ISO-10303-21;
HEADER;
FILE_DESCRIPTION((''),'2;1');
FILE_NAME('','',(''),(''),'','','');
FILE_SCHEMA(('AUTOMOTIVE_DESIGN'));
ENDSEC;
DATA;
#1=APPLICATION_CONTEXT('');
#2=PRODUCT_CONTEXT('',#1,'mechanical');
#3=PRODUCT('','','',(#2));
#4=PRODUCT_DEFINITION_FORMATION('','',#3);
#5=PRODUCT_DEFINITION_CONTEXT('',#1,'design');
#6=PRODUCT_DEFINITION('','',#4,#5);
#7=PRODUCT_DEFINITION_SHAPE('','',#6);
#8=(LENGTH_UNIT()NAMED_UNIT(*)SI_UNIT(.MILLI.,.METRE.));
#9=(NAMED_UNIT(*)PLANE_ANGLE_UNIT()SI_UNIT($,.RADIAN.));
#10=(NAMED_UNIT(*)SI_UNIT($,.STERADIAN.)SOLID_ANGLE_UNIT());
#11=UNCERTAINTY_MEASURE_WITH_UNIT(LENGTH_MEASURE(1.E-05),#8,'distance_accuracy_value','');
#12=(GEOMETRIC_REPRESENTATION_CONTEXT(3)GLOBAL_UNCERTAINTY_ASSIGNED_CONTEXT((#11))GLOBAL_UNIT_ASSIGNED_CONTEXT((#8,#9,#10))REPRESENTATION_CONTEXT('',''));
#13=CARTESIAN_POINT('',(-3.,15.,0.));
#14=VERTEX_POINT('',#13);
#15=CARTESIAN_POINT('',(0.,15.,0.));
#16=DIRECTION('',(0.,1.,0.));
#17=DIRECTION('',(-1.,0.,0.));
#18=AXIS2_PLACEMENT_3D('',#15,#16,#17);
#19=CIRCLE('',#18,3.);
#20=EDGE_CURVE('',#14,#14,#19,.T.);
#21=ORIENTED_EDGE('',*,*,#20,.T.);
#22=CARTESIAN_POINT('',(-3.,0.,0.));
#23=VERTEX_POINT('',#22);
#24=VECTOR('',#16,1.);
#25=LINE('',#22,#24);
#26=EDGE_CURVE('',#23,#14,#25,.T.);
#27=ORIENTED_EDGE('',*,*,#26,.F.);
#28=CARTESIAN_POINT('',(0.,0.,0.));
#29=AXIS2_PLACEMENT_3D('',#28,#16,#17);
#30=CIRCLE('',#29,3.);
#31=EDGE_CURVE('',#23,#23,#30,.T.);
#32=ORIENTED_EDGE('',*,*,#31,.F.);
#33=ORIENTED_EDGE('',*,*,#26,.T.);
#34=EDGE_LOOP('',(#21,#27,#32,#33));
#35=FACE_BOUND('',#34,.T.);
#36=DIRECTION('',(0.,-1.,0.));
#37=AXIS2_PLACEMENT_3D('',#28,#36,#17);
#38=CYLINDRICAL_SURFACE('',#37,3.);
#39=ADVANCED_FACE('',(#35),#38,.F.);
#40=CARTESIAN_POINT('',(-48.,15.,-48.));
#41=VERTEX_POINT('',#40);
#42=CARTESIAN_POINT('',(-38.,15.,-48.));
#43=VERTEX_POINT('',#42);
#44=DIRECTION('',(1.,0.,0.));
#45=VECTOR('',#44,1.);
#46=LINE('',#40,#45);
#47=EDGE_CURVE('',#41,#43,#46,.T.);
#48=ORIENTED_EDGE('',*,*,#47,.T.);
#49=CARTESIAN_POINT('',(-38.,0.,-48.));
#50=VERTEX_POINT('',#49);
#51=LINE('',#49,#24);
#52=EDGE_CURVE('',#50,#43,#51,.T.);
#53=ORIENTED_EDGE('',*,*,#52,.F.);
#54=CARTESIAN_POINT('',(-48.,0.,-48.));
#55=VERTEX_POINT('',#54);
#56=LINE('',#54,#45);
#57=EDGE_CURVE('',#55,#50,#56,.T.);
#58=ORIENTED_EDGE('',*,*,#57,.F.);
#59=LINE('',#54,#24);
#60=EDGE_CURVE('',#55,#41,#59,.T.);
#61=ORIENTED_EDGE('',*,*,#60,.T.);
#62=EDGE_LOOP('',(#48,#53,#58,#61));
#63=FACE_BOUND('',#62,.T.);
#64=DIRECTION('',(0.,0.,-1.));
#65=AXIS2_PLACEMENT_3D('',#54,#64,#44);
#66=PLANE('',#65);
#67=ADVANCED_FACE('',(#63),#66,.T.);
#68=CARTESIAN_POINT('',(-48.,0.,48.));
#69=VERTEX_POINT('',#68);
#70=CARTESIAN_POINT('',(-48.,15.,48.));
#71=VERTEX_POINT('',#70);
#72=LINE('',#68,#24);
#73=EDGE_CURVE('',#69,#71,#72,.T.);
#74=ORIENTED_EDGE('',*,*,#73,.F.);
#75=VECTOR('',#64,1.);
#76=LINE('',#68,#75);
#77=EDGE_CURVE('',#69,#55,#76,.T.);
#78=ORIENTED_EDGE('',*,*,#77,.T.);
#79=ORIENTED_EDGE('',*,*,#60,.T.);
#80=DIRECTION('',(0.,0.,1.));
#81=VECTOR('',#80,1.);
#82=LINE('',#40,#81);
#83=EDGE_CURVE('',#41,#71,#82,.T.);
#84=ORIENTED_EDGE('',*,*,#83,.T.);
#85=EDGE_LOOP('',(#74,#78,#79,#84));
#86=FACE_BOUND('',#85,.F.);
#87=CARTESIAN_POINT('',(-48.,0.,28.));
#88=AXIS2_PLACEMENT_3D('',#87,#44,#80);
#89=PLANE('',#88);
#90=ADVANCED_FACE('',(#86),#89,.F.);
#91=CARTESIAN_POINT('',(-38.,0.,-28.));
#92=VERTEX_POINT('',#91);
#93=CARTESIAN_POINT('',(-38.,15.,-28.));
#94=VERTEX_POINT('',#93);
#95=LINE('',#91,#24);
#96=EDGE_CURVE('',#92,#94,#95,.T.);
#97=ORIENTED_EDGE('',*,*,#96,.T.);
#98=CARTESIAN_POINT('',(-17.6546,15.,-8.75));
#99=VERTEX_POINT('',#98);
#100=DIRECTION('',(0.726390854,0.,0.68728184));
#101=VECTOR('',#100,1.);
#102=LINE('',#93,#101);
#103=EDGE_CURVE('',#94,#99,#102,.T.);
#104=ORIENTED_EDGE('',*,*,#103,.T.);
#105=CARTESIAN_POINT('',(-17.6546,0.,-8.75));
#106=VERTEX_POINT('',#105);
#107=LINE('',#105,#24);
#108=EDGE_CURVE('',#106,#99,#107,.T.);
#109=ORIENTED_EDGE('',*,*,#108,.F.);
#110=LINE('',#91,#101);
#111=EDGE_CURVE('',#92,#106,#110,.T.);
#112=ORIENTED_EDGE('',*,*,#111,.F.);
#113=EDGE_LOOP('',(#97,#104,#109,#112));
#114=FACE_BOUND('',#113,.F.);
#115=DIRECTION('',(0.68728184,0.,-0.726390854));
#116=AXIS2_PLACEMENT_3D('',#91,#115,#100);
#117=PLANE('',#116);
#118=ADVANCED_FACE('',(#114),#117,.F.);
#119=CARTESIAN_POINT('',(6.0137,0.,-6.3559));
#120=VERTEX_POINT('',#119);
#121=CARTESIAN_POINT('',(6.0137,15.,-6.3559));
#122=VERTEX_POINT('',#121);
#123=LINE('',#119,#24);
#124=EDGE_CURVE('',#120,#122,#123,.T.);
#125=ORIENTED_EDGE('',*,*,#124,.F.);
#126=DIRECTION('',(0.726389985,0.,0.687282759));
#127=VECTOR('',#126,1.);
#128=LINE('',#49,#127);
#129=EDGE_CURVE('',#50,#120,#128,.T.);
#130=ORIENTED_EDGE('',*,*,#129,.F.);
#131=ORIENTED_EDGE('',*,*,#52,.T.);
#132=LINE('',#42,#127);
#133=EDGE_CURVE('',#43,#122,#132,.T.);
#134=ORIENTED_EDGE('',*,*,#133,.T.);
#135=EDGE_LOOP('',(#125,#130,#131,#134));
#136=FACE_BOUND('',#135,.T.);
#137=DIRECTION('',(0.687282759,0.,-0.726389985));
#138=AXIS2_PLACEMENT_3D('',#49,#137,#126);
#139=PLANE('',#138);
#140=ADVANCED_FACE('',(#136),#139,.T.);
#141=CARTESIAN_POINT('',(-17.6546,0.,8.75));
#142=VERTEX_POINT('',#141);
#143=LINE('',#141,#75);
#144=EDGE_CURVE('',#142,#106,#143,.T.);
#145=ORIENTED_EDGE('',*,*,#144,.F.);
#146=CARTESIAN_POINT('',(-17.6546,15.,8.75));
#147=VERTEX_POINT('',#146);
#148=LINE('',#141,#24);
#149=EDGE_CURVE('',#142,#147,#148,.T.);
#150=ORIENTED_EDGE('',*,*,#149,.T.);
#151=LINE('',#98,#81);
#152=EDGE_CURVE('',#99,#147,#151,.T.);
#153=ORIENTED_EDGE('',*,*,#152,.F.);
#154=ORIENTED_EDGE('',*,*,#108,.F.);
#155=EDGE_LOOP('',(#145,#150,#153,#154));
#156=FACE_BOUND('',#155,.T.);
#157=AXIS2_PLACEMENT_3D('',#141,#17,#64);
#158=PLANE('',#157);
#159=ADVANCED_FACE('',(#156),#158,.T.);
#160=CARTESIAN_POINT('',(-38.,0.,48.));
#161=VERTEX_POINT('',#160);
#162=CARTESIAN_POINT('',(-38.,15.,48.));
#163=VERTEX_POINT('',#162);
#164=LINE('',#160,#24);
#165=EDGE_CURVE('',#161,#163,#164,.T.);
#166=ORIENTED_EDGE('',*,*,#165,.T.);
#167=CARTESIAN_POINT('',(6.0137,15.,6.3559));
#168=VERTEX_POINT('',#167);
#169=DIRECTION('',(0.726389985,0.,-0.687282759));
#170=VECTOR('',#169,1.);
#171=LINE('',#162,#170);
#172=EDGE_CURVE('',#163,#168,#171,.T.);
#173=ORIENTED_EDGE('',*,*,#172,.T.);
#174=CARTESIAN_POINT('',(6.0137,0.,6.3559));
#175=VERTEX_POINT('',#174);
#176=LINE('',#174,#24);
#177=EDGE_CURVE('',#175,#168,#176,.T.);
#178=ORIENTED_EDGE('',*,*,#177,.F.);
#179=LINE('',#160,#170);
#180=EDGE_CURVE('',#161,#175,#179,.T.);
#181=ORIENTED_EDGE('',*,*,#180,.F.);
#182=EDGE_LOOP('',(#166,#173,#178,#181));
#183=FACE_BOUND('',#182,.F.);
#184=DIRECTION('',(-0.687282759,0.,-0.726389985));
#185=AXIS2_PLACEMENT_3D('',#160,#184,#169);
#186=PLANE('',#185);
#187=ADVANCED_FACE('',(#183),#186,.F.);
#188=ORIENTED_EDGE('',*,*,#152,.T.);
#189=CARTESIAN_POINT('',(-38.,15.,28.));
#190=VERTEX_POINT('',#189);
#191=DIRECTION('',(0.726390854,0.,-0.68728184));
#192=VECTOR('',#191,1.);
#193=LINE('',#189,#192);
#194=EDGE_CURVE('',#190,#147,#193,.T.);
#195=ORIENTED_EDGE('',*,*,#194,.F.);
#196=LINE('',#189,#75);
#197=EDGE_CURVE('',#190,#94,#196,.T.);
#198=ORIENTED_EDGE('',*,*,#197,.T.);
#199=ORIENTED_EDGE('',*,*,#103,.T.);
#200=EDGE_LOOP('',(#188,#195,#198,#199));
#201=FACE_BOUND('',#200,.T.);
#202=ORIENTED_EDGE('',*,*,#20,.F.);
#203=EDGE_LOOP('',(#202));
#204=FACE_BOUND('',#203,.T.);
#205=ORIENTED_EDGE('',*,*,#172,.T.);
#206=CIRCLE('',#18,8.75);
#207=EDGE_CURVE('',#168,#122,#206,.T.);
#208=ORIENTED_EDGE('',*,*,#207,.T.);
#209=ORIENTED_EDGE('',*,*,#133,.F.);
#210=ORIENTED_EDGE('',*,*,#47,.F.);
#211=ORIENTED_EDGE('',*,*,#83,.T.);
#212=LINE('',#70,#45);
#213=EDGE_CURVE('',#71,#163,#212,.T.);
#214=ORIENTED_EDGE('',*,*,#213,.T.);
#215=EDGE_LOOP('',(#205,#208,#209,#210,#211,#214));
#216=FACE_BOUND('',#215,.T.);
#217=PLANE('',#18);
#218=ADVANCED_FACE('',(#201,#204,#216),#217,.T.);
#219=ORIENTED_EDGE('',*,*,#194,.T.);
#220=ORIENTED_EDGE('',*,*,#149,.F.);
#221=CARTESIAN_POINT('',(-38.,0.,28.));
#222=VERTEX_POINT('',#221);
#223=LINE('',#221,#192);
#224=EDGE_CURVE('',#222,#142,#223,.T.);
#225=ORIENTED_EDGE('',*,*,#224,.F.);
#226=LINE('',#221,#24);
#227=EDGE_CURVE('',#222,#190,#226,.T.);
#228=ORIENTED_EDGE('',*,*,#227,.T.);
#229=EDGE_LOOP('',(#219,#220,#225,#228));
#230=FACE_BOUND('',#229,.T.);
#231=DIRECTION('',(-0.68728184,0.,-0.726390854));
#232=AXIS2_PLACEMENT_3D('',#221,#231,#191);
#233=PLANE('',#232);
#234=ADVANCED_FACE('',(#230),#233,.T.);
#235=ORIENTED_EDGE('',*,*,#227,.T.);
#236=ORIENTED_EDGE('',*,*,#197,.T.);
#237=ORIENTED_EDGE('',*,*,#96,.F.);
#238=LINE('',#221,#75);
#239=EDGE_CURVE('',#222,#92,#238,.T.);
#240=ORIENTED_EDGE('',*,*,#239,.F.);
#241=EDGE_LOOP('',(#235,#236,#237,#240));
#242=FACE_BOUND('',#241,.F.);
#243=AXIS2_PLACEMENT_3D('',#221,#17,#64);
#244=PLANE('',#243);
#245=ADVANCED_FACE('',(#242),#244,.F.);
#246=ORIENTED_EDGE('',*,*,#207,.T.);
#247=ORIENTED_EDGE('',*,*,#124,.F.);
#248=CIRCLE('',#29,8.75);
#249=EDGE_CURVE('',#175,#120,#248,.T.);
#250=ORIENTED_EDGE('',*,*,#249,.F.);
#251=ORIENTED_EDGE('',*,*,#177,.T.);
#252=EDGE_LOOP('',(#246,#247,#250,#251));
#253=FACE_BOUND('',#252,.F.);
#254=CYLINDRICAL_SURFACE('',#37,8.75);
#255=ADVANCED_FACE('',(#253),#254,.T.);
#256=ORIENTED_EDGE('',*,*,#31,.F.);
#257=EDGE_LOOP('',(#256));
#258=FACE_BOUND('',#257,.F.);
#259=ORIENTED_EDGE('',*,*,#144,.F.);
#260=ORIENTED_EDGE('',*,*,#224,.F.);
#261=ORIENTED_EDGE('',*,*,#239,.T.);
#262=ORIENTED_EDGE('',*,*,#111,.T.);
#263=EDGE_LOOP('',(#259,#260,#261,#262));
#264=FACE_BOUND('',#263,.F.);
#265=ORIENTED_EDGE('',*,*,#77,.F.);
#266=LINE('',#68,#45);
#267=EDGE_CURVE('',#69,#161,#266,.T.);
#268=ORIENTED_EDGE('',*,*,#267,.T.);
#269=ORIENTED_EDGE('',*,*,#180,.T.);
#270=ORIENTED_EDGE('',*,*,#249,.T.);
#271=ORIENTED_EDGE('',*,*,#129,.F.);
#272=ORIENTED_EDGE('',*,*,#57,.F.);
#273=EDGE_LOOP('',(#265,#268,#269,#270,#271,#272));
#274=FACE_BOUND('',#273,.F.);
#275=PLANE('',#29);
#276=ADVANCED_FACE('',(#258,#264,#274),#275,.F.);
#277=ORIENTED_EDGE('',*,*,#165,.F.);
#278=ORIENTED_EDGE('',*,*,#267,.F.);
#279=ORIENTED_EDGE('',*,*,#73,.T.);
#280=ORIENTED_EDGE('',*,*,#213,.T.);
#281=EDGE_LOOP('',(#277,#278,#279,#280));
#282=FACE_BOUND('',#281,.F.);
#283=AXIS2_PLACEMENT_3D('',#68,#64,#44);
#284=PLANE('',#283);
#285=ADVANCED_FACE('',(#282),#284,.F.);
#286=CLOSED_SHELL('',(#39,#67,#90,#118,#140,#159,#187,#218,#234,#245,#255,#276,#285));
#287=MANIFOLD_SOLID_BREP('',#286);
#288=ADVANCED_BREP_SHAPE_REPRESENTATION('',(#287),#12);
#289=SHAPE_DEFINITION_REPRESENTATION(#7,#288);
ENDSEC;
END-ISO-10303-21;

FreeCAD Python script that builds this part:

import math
import FreeCAD as App
import Part
import Sketcher


def add_polygon(sketch, points):
    """Adds a closed chain of lines whose ends are joined by coincident constraints."""
    first, n = sketch.GeometryCount, len(points)
    for a, b in zip(points, points[1:] + points[:1]):
        sketch.addGeometry(Part.LineSegment(App.Vector(*a, 0), App.Vector(*b, 0)), False)
    for i in range(n):
        sketch.addConstraint(Sketcher.Constraint("Coincident", first + i, 2, first + (i + 1) % n, 1))

doc = App.newDocument("Part")
body = doc.addObject("PartDesign::Body", "Body")

# Sketch on XZ plane
sketch1 = doc.addObject("Sketcher::SketchObject", "Sketch")
body.addObject(sketch1)
sketch1.AttachmentSupport = (doc.XZ_Plane, [""])
sketch1.MapMode = "FlatFace"
sketch1.addGeometry(Part.ArcOfCircle(Part.Circle(App.Vector(0, 0, 0), App.Vector(0, 0, 1), 8.8), math.radians(-47), math.radians(47)), False)  # 0
sketch1.addGeometry(Part.LineSegment(App.Vector(6, -6.4, 0), App.Vector(-38, -48, 0)), False)  # 1
sketch1.addGeometry(Part.LineSegment(App.Vector(-38, -48, 0), App.Vector(-48, -48, 0)), False)  # 2
sketch1.addGeometry(Part.LineSegment(App.Vector(-48, -48, 0), App.Vector(-48, 48, 0)), False)  # 3
sketch1.addGeometry(Part.LineSegment(App.Vector(-48, 48, 0), App.Vector(-38, 48, 0)), False)  # 4
sketch1.addGeometry(Part.LineSegment(App.Vector(-38, 48, 0), App.Vector(6, 6.4, 0)), False)  # 5
sketch1.addGeometry(Part.Circle(App.Vector(0, 0, 0), App.Vector(0, 0, 1), 3), False)  # 6
add_polygon(sketch1, [(-17.7, 8.8), (-38, 28), (-38, -28), (-17.7, -8.8)])  # lines 7-10
sketch1.addConstraint(Sketcher.Constraint("Tangent", 0, 1, 1, 1))
sketch1.addConstraint(Sketcher.Constraint("Coincident", 1, 2, 2, 1))
sketch1.addConstraint(Sketcher.Constraint("Coincident", 2, 2, 3, 1))
sketch1.addConstraint(Sketcher.Constraint("Coincident", 3, 2, 4, 1))
sketch1.addConstraint(Sketcher.Constraint("Coincident", 4, 2, 5, 1))
sketch1.addConstraint(Sketcher.Constraint("Tangent", 5, 2, 0, 2))
sketch1.addConstraint(Sketcher.Constraint("Horizontal", 2))
sketch1.addConstraint(Sketcher.Constraint("Vertical", 3))
sketch1.addConstraint(Sketcher.Constraint("Horizontal", 4))
sketch1.addConstraint(Sketcher.Constraint("Vertical", 8))
sketch1.addConstraint(Sketcher.Constraint("Vertical", 10))
sketch1.addConstraint(Sketcher.Constraint("Coincident", 0, 3, -1, 1))
sketch1.addConstraint(Sketcher.Constraint("Coincident", 6, 3, -1, 1))
sketch1.addConstraint(Sketcher.Constraint("Symmetric", 1, 2, 4, 2, -1))
sketch1.addConstraint(Sketcher.Constraint("Parallel", 5, 7))
sketch1.addConstraint(Sketcher.Constraint("Parallel", 1, 9))
sketch1.addConstraint(Sketcher.Constraint("Vertical", 4, 2, 7, 2))
sketch1.addConstraint(Sketcher.Constraint("Diameter", 6, 6.0))
sketch1.addConstraint(Sketcher.Constraint("DistanceX", 2, 2, 2, 1, 10.0))
sketch1.addConstraint(Sketcher.Constraint("DistanceY", 3, 1, 3, 2, 96.0))
sketch1.addConstraint(Sketcher.Constraint("Radius", 0, 8.75))
sketch1.addConstraint(Sketcher.Constraint("DistanceY", 10, 1, 10, 2, 17.5))
sketch1.addConstraint(Sketcher.Constraint("DistanceX", 2, 2, -1, 1, 48.0))
sketch1.addConstraint(Sketcher.Constraint("DistanceY", 7, 2, 4, 2, 20.0))
sketch1.addConstraint(Sketcher.Constraint("DistanceY", 1, 2, 8, 2, 20.0))
pad1 = doc.addObject("PartDesign::Pad", "Pad")
body.addObject(pad1)
pad1.Profile = sketch1
pad1.Length = 15
pad1.Reversed = True

doc.recompute()
